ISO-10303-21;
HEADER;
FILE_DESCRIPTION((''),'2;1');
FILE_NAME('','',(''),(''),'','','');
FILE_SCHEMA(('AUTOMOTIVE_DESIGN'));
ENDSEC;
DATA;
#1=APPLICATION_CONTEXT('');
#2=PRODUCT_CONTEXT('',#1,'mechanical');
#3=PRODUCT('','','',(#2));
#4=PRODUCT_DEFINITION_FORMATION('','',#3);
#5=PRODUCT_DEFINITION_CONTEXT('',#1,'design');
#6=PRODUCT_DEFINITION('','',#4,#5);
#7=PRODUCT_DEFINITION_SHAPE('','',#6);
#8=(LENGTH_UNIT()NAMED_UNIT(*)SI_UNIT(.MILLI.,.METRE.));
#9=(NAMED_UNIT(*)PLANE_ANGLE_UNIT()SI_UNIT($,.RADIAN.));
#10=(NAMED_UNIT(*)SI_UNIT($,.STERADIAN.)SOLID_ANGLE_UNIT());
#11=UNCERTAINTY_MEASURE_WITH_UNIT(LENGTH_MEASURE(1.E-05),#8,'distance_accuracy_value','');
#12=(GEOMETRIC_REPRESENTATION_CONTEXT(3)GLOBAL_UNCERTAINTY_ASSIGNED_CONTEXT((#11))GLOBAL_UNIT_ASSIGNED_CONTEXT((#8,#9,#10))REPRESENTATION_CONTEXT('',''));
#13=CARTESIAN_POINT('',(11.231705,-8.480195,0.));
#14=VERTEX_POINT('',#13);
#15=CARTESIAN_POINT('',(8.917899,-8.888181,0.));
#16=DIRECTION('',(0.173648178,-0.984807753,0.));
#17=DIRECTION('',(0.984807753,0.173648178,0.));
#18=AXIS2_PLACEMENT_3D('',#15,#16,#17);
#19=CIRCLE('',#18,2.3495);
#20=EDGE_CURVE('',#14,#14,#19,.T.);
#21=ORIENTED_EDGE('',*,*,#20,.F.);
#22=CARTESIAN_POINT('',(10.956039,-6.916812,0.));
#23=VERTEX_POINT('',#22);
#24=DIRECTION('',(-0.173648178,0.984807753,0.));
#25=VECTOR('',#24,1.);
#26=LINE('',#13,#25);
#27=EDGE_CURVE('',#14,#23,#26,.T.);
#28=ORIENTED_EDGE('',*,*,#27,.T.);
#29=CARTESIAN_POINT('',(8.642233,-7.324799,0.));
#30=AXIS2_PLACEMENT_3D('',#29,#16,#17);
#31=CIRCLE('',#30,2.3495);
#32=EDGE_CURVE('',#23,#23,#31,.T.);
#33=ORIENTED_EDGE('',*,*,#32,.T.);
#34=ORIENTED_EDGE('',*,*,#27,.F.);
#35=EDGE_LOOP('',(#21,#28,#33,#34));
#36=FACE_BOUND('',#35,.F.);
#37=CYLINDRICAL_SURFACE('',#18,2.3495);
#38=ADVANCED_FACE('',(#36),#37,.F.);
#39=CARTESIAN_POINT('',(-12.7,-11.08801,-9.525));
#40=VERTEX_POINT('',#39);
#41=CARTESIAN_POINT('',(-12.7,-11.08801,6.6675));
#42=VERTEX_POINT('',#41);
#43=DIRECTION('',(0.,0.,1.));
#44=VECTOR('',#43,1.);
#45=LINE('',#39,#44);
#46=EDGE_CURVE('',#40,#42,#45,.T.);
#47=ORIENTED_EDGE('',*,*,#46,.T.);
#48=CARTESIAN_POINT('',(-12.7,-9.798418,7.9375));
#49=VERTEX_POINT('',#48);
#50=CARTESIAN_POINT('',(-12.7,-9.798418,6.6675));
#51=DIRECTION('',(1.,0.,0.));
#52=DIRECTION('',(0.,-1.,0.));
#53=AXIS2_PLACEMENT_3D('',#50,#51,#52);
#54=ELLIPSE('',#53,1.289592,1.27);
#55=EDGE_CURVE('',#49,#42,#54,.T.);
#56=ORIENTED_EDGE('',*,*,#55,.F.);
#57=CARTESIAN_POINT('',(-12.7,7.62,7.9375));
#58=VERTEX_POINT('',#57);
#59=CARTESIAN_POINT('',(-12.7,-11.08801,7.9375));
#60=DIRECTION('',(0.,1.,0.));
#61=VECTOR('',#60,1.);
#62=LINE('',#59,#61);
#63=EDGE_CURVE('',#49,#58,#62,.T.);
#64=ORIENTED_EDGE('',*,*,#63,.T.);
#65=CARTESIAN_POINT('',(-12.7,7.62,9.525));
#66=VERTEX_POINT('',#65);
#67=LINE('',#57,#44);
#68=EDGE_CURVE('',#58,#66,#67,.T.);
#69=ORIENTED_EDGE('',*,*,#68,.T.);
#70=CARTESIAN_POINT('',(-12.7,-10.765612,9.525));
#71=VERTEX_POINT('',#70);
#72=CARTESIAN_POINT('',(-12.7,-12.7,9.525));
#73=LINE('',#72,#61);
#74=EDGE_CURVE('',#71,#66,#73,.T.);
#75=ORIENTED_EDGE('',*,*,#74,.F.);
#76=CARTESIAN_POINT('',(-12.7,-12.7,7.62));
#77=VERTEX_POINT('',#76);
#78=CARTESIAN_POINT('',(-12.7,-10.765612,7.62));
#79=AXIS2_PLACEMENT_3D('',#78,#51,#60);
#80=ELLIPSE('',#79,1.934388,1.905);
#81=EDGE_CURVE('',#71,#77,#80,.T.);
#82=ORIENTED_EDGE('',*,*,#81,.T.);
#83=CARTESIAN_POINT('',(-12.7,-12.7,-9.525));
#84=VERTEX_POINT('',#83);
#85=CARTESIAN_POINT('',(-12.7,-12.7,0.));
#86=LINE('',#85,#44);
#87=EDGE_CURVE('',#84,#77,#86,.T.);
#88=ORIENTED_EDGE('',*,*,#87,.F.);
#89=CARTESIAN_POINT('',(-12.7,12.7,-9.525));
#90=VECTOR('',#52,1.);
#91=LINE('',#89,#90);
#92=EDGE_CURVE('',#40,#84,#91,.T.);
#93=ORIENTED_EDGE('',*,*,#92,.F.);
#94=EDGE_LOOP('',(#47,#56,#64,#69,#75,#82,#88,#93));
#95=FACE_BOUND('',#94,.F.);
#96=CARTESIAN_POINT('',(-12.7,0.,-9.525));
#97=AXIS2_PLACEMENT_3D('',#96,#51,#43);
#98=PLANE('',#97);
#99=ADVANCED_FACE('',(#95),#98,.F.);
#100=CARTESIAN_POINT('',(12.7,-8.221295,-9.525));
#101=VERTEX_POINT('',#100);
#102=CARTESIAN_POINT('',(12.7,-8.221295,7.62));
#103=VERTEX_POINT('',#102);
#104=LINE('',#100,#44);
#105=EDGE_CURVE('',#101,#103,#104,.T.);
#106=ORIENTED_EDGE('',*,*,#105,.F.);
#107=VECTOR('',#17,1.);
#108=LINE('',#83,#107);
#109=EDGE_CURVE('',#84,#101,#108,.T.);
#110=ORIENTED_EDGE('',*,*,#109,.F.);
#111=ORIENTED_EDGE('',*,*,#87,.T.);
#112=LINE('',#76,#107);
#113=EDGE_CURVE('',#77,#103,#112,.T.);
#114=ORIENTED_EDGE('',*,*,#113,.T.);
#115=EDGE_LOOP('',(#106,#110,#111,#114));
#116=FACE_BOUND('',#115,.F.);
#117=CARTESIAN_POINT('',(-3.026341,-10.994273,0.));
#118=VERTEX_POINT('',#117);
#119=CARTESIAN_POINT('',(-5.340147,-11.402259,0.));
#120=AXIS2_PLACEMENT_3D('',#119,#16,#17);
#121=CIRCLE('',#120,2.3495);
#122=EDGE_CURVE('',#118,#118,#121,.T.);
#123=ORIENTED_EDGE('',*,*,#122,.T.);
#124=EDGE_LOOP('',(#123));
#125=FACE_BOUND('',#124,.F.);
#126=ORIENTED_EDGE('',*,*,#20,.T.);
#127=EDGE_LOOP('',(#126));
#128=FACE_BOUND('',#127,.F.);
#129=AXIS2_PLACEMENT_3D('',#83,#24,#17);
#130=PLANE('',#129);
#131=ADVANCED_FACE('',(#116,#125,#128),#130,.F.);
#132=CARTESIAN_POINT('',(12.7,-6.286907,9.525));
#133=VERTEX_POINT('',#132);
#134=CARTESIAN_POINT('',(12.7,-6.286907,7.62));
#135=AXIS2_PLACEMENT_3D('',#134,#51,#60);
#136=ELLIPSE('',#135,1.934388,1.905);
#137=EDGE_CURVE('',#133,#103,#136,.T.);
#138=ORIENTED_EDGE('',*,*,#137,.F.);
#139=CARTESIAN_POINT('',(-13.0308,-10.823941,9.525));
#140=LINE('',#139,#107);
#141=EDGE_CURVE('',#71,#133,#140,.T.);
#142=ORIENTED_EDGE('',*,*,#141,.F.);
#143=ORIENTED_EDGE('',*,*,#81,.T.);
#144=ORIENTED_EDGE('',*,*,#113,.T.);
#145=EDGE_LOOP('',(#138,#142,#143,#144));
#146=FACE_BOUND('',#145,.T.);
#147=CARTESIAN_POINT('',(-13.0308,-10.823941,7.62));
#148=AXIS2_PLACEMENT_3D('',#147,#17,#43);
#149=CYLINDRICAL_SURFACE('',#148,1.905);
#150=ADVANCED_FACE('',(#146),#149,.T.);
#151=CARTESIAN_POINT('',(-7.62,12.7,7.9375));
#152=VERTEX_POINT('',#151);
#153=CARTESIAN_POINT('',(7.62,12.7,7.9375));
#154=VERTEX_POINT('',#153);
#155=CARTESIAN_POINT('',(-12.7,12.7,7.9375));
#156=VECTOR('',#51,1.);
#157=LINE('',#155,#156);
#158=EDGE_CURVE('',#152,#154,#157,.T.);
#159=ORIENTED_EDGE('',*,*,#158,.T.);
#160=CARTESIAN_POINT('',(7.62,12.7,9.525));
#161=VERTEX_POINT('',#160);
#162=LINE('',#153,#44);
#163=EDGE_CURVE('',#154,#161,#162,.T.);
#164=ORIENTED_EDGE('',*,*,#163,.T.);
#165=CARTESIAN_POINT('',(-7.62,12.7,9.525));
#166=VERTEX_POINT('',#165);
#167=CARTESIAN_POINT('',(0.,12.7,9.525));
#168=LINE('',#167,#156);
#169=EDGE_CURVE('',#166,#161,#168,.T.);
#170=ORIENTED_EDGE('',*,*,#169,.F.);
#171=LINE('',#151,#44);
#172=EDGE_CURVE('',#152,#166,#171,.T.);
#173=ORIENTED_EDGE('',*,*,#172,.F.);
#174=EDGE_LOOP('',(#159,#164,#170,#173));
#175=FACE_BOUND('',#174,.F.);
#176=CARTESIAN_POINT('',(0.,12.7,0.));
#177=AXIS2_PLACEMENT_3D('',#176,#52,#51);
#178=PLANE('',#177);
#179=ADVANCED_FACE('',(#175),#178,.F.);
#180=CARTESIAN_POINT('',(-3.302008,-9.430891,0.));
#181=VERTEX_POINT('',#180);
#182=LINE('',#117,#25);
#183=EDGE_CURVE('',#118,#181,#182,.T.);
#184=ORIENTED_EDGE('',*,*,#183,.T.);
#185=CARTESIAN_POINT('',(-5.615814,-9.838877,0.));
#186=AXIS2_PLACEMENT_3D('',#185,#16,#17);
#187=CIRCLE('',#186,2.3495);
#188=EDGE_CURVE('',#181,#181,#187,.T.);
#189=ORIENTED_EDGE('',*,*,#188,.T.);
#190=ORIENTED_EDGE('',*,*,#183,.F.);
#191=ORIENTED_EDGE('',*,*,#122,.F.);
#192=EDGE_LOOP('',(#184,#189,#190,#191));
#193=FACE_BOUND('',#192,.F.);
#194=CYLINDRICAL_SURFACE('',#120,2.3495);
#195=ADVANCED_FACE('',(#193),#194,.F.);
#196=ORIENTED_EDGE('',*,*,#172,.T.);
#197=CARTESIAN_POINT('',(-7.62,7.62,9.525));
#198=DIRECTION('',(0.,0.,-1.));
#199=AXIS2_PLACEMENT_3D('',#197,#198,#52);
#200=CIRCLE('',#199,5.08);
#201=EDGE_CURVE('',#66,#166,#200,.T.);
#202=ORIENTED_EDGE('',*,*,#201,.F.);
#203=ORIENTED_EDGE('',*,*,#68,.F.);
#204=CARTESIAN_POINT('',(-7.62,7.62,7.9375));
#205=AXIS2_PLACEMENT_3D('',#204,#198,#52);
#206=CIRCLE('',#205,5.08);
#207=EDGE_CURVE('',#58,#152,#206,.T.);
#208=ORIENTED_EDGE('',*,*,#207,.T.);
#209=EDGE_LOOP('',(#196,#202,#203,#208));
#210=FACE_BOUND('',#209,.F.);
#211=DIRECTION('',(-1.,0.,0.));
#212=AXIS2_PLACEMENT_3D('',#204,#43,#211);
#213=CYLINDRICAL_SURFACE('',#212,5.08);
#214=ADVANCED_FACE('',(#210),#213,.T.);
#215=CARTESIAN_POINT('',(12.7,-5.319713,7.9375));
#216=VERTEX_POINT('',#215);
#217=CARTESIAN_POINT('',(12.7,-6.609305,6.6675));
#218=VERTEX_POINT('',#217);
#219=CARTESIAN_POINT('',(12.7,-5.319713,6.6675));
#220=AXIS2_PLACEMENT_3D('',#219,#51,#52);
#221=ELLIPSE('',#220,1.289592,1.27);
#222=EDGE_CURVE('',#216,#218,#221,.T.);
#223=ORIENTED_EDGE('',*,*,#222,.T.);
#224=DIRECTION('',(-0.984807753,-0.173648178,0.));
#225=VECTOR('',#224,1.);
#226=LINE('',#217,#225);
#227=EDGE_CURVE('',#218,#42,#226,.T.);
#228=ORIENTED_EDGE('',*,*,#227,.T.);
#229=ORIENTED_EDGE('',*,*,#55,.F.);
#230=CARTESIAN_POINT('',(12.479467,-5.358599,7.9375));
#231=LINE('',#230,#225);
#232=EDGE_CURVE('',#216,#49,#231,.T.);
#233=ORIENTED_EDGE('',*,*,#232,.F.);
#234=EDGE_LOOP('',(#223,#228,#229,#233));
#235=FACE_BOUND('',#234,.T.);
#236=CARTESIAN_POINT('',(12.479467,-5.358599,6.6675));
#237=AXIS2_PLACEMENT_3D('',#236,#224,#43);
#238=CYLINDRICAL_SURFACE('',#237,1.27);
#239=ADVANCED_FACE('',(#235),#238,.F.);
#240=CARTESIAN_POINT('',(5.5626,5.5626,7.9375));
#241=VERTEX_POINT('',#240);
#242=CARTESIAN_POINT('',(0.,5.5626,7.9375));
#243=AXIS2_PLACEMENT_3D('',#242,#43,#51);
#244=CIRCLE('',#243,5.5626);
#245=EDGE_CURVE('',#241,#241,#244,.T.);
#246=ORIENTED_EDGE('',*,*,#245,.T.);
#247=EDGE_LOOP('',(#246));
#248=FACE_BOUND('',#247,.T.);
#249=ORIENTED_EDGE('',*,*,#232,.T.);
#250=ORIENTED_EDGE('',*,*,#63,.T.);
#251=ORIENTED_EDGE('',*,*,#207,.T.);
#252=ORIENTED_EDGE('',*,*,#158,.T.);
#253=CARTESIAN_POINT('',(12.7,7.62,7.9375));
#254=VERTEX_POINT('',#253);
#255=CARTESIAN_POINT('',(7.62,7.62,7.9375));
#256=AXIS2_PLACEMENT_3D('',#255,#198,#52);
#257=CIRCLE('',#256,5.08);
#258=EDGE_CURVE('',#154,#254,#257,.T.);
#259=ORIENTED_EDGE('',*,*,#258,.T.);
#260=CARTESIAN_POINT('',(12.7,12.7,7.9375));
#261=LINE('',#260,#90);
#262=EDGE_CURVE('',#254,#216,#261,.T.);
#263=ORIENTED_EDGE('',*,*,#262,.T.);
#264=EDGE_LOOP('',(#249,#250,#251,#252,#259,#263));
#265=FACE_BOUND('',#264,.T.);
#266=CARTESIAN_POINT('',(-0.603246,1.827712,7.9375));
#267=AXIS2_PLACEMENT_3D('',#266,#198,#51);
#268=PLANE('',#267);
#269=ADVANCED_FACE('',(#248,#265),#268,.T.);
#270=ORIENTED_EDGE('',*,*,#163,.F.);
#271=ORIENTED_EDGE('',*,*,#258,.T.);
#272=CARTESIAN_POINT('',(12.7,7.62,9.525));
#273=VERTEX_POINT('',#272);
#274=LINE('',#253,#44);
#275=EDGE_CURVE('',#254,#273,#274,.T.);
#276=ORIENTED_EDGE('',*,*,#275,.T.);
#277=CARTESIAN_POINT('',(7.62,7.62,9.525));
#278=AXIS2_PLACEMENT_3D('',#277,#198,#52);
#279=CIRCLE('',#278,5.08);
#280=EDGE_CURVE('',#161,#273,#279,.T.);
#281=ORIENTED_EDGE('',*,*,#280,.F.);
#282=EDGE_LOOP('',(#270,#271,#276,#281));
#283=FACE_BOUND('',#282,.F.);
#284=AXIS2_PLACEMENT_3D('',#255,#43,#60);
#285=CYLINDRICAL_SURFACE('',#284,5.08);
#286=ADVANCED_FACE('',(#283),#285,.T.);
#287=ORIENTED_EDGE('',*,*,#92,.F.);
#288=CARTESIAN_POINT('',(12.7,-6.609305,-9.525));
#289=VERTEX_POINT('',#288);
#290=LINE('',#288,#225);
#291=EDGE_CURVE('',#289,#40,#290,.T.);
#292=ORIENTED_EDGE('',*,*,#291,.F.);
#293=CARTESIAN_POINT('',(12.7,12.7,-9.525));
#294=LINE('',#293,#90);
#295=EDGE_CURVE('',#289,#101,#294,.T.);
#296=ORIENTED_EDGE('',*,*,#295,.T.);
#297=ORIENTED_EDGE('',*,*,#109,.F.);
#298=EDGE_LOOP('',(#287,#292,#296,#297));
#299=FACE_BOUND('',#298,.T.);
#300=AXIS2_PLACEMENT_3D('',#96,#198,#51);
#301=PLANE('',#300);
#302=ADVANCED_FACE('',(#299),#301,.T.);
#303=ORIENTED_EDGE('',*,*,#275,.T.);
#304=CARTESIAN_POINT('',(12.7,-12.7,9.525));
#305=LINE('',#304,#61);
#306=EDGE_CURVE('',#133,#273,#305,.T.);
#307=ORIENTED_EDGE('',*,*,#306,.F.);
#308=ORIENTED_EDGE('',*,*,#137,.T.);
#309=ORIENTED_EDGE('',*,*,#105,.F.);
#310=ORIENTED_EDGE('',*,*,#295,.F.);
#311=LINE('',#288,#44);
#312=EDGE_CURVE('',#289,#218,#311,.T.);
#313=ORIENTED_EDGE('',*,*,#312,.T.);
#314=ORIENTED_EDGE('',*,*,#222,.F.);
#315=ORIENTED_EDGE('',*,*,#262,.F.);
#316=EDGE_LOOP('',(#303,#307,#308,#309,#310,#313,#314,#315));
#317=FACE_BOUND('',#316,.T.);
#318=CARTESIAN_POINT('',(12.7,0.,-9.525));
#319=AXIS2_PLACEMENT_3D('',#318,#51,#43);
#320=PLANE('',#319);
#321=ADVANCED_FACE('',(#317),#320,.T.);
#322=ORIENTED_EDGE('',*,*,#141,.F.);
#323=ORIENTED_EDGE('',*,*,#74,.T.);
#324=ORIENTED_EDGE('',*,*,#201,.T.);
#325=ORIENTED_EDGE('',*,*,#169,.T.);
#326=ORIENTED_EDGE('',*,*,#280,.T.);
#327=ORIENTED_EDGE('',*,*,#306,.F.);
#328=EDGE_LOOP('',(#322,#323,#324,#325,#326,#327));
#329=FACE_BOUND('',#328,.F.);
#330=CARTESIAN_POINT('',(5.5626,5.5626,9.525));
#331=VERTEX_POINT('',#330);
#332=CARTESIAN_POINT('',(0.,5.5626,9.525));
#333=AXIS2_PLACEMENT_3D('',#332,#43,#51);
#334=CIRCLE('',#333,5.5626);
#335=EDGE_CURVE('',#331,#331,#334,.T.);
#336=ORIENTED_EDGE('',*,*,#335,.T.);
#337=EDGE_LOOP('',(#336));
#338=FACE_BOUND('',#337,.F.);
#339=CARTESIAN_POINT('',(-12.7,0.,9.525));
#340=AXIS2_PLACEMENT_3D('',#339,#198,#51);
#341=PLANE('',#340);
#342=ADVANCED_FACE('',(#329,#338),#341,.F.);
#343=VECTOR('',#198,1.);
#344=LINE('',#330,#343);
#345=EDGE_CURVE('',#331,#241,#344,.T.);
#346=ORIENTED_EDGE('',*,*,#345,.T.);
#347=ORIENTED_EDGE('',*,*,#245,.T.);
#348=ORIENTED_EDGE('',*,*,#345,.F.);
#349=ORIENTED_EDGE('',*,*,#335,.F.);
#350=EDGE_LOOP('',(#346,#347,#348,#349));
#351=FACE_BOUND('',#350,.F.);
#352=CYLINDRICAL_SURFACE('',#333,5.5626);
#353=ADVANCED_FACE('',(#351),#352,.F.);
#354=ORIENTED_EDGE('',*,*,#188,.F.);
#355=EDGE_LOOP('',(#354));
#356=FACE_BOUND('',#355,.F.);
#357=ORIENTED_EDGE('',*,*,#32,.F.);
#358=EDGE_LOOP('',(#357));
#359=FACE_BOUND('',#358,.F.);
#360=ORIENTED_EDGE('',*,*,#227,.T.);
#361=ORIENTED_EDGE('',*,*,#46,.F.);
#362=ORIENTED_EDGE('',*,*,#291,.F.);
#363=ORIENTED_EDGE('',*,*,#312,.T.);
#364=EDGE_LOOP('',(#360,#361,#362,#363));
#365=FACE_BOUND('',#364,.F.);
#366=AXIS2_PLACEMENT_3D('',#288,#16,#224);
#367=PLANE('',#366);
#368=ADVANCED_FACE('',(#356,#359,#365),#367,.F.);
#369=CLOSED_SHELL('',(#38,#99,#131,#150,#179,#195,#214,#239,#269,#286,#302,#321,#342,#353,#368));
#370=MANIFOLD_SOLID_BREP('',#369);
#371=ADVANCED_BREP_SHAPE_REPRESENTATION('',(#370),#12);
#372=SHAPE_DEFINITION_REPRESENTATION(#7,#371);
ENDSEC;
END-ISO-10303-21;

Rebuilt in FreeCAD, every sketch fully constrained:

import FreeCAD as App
import Part
import Sketcher
Q = App.Units.Quantity


def edges_at(feature, points):
    """Names of the edges that pass closest to the given points."""
    edges = feature.Shape.Edges
    near = lambda p: min(range(len(edges)), key=lambda i: edges[i].distToShape(Part.Vertex(*p))[0])
    return sorted({f"Edge{near(p) + 1}" for p in points})

doc = App.newDocument("Part")
body = doc.addObject("PartDesign::Body", "Body")

# Sketch on XZ plane
sketch1 = body.newObject("Sketcher::SketchObject", "Sketch")
sketch1.AttachmentSupport = (doc.getObject("XZ_Plane"), [""])
sketch1.MapMode = "FlatFace"
sketch1.addGeometry([
    Part.LineSegment(App.Vector(-13, 10, 0), App.Vector(-13, -10, 0)),
    Part.LineSegment(App.Vector(-13, -10, 0), App.Vector(13, -10, 0)),
    Part.LineSegment(App.Vector(13, -10, 0), App.Vector(13, 10, 0)),
    Part.LineSegment(App.Vector(13, 10, 0), App.Vector(-13, 10, 0)),
], False)
sketch1.addConstraint([
    Sketcher.Constraint("Coincident", 0, 2, 1, 1),
    Sketcher.Constraint("Coincident", 1, 2, 2, 1),
    Sketcher.Constraint("Coincident", 2, 2, 3, 1),
    Sketcher.Constraint("Coincident", 3, 2, 0, 1),
    Sketcher.Constraint("Vertical", 0),
    Sketcher.Constraint("Horizontal", 1),
    Sketcher.Constraint("Vertical", 2),
    Sketcher.Constraint("Horizontal", 3),
    Sketcher.Constraint("Symmetric", 0, 2, 2, 2, -1, 1),
    Sketcher.Constraint("DistanceX", 1, 1, 1, 2, Q("1 in")),
    Sketcher.Constraint("DistanceY", 0, 2, 0, 1, Q("0.75 in")),
])
pad1 = body.newObject("PartDesign::Pad", "Pad")
pad1.Profile = sketch1
pad1.Length = Q("1 in")
pad1.Midplane = True

# Sketch on XY plane
sketch2 = body.newObject("Sketcher::SketchObject", "Sketch001")
sketch2.AttachmentSupport = (doc.getObject("XY_Plane"), [""])
sketch2.MapMode = "FlatFace"
sketch2.AttachmentOffset = App.Placement(App.Vector(0, 0, -0.375 * 25.4), App.Rotation())
sketch2.addGeometry([
    Part.LineSegment(App.Vector(12.7, -12.7, 0), App.Vector(-12.7, -12.7, 0)),
    Part.LineSegment(App.Vector(-12.7, -12.7, 0), App.Vector(12.7, -8.2, 0)),
    Part.LineSegment(App.Vector(12.7, -8.2, 0), App.Vector(12.7, -12.7, 0)),
], False)
sketch2.addConstraint([
    Sketcher.Constraint("Coincident", 0, 2, 1, 1),
    Sketcher.Constraint("Coincident", 1, 2, 2, 1),
    Sketcher.Constraint("Coincident", 2, 2, 0, 1),
    Sketcher.Constraint("Horizontal", 0),
    Sketcher.Constraint("Vertical", 2),
    Sketcher.Constraint("DistanceX", 0, 2, 0, 1, Q("1 in")),
    Sketcher.Constraint("Angle", 1, Q("10 deg")),
    Sketcher.Constraint("DistanceX", 0, 2, -1, 1, Q("0.5 in")),
    Sketcher.Constraint("DistanceY", 0, 2, -1, 1, Q("0.5 in")),
])
pocket1 = body.newObject("PartDesign::Pocket", "Pocket")
pocket1.Profile = sketch2
pocket1.Type = "ThroughAll"
pocket1.Reversed = True

# Sketch on XY plane
sketch3 = body.newObject("Sketcher::SketchObject", "Sketch002")
sketch3.AttachmentSupport = (doc.getObject("XY_Plane"), [""])
sketch3.MapMode = "FlatFace"
sketch3.AttachmentOffset = App.Placement(App.Vector(0, 0, -0.375 * 25.4), App.Rotation())
sketch3.addGeometry([
    Part.LineSegment(App.Vector(13, -7, 0), App.Vector(-13, -11, 0)),
    Part.LineSegment(App.Vector(-13, -11, 0), App.Vector(-13, 13, 0)),
    Part.LineSegment(App.Vector(-13, 13, 0), App.Vector(13, 13, 0)),
    Part.LineSegment(App.Vector(13, 13, 0), App.Vector(13, -7, 0)),
], False)
sketch3.addConstraint([
    Sketcher.Constraint("Coincident", 0, 2, 1, 1),
    Sketcher.Constraint("Coincident", 1, 2, 2, 1),
    Sketcher.Constraint("Coincident", 2, 2, 3, 1),
    Sketcher.Constraint("Coincident", 3, 2, 0, 1),
    Sketcher.Constraint("Vertical", 1),
    Sketcher.Constraint("Horizontal", 2),
    Sketcher.Constraint("Vertical", 3),
    Sketcher.Constraint("DistanceX", 2, 1, 2, 2, Q("1 in")),
    Sketcher.Constraint("Angle", 0, Q("-170 deg")),
    Sketcher.Constraint("DistanceX", 0, 2, -1, 1, Q("0.5 in")),
    Sketcher.Constraint("DistanceY", -1, 1, 1, 2, Q("0.5 in")),
    Sketcher.Constraint("DistanceY", 1, 1, 1, 2, 23.78801),
])
pocket2 = body.newObject("PartDesign::Pocket", "Pocket001")
pocket2.Profile = sketch3
pocket2.Length = Q("0.6875 in")
pocket2.Reversed = True
doc.recompute()

fillet = body.newObject("PartDesign::Fillet", "Fillet")
fillet.Base = (pocket2, edges_at(pocket2, [(0, -8.849, 7.938)]))
fillet.Radius = Q("0.05 in")
doc.recompute()

fillet2 = body.newObject("PartDesign::Fillet", "Fillet001")
fillet2.Base = (fillet, edges_at(fillet, [(0, -10.461, 9.525)]))
fillet2.Radius = Q("0.075 in")

# Sketch on an angled plane
sketch4 = body.newObject("Sketcher::SketchObject", "Sketch003")
sketch4.Placement = App.Placement(App.Vector(1.788876, -10.14522, 0), App.Rotation(App.Vector(0.984807753, 0.173648178, 0), App.Vector(0, 0, 1), App.Vector(0.173648178, -0.984807753, 0), "ZXY"))
sketch4.addGeometry([
    Part.Circle(App.Vector(7.2, 0, 0), App.Vector(0, 0, 1), 2.3),
    Part.Circle(App.Vector(-7.2, 0, 0), App.Vector(0, 0, 1), 2.3),
], False)
sketch4.addConstraint([
    Sketcher.Constraint("Equal", 0, 1),
    Sketcher.Constraint("Symmetric", 0, 3, 1, 3, -1, 1),
    Sketcher.Constraint("PointOnObject", 0, 3, -1),
    Sketcher.Constraint("Diameter", 0, Q("0.185 in")),
    Sketcher.Constraint("DistanceX", 1, 3, 0, 3, Q("0.57 in")),
])
pocket3 = body.newObject("PartDesign::Pocket", "Pocket002")
pocket3.Profile = sketch4
pocket3.Type = "ThroughAll"
doc.recompute()

fillet3 = body.newObject("PartDesign::Fillet", "Fillet002")
fillet3.Base = (pocket3, edges_at(pocket3, [(12.7, 12.7, 8.731), (-12.7, 12.7, 8.731)]))
fillet3.Radius = Q("0.2 in")

# Sketch on XY plane
sketch5 = body.newObject("Sketcher::SketchObject", "Sketch004")
sketch5.AttachmentSupport = (doc.getObject("XY_Plane"), [""])
sketch5.MapMode = "FlatFace"
sketch5.AttachmentOffset = App.Placement(App.Vector(0, 0, 0.375 * 25.4), App.Rotation())
sketch5.addGeometry(Part.Circle(App.Vector(0, 6, 0), App.Vector(0, 0, 1), 6), False)
sketch5.addConstraint([
    Sketcher.Constraint("PointOnObject", 0, 3, -2),
    Sketcher.Constraint("Diameter", 0, Q("0.438 in")),
    Sketcher.Constraint("DistanceY", -1, 1, 0, 3, Q("0.219 in")),
])
pocket4 = body.newObject("PartDesign::Pocket", "Pocket003")
pocket4.Profile = sketch5
pocket4.Type = "ThroughAll"

doc.recompute()
